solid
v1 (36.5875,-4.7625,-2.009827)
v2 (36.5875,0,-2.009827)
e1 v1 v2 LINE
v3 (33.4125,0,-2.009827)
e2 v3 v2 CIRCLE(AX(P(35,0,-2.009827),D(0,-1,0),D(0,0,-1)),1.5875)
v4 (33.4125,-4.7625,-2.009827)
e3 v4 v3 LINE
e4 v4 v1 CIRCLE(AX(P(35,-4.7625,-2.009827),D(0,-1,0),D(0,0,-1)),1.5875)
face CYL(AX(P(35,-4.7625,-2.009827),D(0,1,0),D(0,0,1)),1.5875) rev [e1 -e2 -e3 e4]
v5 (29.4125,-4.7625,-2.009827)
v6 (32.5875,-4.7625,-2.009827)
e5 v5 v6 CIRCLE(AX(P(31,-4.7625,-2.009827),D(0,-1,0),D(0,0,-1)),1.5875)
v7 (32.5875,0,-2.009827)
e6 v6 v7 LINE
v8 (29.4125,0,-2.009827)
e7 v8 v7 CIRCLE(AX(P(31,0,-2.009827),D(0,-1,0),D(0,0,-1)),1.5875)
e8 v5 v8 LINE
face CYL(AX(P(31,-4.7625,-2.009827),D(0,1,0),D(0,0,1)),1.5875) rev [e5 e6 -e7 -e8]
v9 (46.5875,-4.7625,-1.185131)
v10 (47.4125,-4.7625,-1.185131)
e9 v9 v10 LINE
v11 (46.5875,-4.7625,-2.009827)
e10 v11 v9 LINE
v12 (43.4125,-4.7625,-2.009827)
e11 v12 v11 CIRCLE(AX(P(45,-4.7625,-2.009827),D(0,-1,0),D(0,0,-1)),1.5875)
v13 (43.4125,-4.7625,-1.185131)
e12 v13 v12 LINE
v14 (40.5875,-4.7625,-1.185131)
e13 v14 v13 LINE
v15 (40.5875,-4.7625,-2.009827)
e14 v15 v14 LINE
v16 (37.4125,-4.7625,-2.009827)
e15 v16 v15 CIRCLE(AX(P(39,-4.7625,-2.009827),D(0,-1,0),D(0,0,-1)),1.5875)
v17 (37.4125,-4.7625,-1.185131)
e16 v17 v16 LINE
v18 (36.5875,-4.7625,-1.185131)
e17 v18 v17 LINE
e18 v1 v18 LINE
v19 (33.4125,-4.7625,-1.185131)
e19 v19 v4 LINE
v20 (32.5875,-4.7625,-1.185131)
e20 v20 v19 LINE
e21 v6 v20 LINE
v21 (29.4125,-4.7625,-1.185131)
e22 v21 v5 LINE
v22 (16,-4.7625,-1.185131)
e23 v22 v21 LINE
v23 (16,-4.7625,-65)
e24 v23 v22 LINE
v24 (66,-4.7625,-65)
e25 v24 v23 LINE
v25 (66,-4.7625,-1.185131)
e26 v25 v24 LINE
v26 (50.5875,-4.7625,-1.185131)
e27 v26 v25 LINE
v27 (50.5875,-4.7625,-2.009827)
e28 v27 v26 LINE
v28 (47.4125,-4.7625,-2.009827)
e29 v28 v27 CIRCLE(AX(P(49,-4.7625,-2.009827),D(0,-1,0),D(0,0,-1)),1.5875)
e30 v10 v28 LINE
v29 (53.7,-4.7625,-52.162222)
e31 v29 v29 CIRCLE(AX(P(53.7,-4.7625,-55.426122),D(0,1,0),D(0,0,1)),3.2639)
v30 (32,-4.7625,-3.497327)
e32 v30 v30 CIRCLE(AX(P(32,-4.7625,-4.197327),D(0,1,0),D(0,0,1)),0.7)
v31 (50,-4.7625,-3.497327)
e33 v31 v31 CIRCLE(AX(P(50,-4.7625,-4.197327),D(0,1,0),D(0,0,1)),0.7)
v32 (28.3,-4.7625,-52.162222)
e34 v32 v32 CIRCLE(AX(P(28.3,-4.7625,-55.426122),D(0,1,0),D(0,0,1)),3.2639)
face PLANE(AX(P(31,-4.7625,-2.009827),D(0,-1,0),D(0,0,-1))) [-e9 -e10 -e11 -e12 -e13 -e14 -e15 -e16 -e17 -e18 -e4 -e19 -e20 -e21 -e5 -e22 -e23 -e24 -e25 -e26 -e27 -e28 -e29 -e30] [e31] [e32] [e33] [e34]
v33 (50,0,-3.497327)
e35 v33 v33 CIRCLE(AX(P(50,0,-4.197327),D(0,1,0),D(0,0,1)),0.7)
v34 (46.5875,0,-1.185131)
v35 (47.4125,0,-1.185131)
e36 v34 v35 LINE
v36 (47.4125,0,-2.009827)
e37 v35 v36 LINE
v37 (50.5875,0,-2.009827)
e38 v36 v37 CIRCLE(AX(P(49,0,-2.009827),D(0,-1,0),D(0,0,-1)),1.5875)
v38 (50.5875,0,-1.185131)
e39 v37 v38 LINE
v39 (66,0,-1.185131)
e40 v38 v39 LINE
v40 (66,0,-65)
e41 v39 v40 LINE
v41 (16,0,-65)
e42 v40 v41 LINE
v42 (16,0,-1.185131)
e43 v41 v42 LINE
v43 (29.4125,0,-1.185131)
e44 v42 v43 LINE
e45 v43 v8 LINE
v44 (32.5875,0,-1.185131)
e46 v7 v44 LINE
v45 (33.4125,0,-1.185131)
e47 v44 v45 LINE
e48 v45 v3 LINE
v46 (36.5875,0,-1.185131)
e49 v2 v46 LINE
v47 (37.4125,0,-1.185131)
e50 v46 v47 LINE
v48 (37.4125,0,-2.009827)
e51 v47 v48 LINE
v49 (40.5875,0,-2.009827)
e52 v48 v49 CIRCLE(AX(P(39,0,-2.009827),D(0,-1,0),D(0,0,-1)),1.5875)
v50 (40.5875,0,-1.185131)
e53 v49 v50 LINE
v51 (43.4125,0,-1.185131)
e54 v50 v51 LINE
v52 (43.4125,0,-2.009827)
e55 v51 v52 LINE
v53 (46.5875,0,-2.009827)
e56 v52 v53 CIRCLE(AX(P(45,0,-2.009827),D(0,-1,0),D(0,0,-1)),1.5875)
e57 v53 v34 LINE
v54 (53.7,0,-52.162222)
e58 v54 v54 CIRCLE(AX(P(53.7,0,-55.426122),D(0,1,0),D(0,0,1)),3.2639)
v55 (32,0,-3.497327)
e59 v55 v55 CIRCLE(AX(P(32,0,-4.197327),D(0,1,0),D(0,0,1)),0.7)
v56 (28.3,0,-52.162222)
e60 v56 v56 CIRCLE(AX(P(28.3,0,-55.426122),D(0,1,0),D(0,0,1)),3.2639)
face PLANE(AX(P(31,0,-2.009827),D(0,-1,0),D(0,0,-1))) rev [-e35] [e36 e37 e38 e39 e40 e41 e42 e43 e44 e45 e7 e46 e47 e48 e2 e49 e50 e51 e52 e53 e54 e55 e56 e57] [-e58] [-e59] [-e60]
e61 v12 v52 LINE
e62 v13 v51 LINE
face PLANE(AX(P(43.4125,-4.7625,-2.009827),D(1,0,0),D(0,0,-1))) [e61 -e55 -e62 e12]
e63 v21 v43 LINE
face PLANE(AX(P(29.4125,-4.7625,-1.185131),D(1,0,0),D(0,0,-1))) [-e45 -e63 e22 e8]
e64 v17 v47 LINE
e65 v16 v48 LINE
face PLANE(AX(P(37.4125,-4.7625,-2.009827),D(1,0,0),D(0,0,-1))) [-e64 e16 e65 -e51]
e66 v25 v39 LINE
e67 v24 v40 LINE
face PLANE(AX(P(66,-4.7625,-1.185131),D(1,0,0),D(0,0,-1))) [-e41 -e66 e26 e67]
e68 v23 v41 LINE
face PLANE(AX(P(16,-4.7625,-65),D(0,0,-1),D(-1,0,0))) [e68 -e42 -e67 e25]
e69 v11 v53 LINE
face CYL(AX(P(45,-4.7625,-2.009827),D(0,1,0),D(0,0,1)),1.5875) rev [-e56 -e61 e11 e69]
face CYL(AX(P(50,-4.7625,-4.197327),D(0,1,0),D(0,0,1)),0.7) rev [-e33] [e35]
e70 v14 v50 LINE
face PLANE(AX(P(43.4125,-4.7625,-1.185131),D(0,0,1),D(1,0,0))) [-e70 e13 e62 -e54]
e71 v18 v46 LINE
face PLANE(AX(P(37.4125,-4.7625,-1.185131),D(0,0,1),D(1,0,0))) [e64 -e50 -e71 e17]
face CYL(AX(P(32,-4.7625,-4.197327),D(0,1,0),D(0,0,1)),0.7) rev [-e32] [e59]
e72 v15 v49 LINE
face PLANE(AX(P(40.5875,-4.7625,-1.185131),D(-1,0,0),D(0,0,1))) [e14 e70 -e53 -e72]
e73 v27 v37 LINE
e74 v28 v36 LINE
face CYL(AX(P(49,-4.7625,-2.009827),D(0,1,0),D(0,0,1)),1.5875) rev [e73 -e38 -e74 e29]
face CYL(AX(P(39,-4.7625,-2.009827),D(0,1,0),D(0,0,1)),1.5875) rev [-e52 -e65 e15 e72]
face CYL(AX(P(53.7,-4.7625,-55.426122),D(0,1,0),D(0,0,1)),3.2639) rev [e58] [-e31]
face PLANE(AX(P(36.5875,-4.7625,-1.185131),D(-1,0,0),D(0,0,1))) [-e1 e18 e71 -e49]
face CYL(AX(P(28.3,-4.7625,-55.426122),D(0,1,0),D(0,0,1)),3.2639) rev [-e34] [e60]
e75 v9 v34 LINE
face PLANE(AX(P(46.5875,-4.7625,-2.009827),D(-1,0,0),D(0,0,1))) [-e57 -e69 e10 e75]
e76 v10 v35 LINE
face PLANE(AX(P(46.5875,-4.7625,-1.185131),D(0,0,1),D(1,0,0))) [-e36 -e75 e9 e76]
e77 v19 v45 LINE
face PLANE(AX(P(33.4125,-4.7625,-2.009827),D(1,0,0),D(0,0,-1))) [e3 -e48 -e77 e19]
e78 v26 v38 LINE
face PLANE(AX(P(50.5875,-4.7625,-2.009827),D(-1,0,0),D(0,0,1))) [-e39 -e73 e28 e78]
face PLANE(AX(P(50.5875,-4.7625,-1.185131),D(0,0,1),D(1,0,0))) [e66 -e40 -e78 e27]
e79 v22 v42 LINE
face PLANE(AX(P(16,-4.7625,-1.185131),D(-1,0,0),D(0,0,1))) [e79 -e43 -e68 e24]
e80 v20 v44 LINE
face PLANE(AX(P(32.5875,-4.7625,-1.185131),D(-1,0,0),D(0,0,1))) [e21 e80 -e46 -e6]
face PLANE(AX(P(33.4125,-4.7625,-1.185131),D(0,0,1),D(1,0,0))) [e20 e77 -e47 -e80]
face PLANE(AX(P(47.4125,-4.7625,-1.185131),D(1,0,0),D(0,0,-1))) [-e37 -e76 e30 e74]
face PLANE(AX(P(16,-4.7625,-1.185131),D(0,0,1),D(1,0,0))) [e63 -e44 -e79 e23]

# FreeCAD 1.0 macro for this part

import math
import FreeCAD as App
import Part
import Sketcher
from FreeCAD import Vector
Q = App.Units.Quantity

doc = App.newDocument("Part")
params = doc.addObject("Spreadsheet::Sheet", "Params")
for row, (alias, value) in enumerate([
    ("sketch1_diameter", "0.257 in"),
    ("sketch1_radius", "0.0625 in"),
    ("pad1_length", "0.1875 in"),
], start=1):
    params.set(f"A{row}", alias)
    params.set(f"B{row}", "=" + value)
    params.setAlias(f"B{row}", alias)

body = doc.addObject("PartDesign::Body", "Body")

# Sketch on XZ plane
sketch1 = body.newObject("Sketcher::SketchObject", "Sketch")
sketch1.AttachmentSupport = (doc.getObject("XZ_Plane"), [""])
sketch1.MapMode = "FlatFace"
sketch1.addGeometry([
    Part.LineSegment(Vector(16, -65, 0), Vector(16, -1.2, 0)),  # 0
    Part.LineSegment(Vector(16, -1.2, 0), Vector(29.4, -1.2, 0)),  # 1
    Part.LineSegment(Vector(29.4, -1.2, 0), Vector(29.4, -2, 0)),  # 2
    Part.ArcOfCircle(Part.Circle(Vector(31, -2, 0), Vector(0, 0, 1), 1.6), math.radians(180), math.radians(360)),  # 3
    Part.LineSegment(Vector(32.6, -2, 0), Vector(32.6, -1.2, 0)),  # 4
    Part.LineSegment(Vector(32.6, -1.2, 0), Vector(33.4, -1.2, 0)),  # 5
    Part.LineSegment(Vector(33.4, -1.2, 0), Vector(33.4, -2, 0)),  # 6
    Part.ArcOfCircle(Part.Circle(Vector(35, -2, 0), Vector(0, 0, 1), 1.6), math.radians(180), math.radians(360)),  # 7
    Part.LineSegment(Vector(36.6, -2, 0), Vector(36.6, -1.2, 0)),  # 8
    Part.LineSegment(Vector(36.6, -1.2, 0), Vector(37.4, -1.2, 0)),  # 9
    Part.LineSegment(Vector(37.4, -1.2, 0), Vector(37.4, -2, 0)),  # 10
    Part.ArcOfCircle(Part.Circle(Vector(39, -2, 0), Vector(0, 0, 1), 1.6), math.radians(180), math.radians(360)),  # 11
    Part.LineSegment(Vector(40.6, -2, 0), Vector(40.6, -1.2, 0)),  # 12
    Part.LineSegment(Vector(40.6, -1.2, 0), Vector(43.4, -1.2, 0)),  # 13
    Part.LineSegment(Vector(43.4, -1.2, 0), Vector(43.4, -2, 0)),  # 14
    Part.ArcOfCircle(Part.Circle(Vector(45, -2, 0), Vector(0, 0, 1), 1.6), math.radians(180), math.radians(360)),  # 15
    Part.LineSegment(Vector(46.6, -2, 0), Vector(46.6, -1.2, 0)),  # 16
    Part.LineSegment(Vector(46.6, -1.2, 0), Vector(47.4, -1.2, 0)),  # 17
    Part.LineSegment(Vector(47.4, -1.2, 0), Vector(47.4, -2, 0)),  # 18
    Part.ArcOfCircle(Part.Circle(Vector(49, -2, 0), Vector(0, 0, 1), 1.6), math.radians(180), math.radians(360)),  # 19
    Part.LineSegment(Vector(50.6, -2, 0), Vector(50.6, -1.2, 0)),  # 20
    Part.LineSegment(Vector(50.6, -1.2, 0), Vector(66, -1.2, 0)),  # 21
    Part.LineSegment(Vector(66, -1.2, 0), Vector(66, -65, 0)),  # 22
    Part.LineSegment(Vector(66, -65, 0), Vector(16, -65, 0)),  # 23
    Part.Circle(Vector(50, -4.2, 0), Vector(0, 0, 1), 0.7),  # 24
    Part.Circle(Vector(32, -4.2, 0), Vector(0, 0, 1), 0.7),  # 25
    Part.Circle(Vector(53.7, -55.4, 0), Vector(0, 0, 1), 3.3),  # 26
    Part.Circle(Vector(28.3, -55.4, 0), Vector(0, 0, 1), 3.3),  # 27
], False)
sketch1.addConstraint([
    Sketcher.Constraint("Coincident", 0, 2, 1, 1),
    Sketcher.Constraint("Coincident", 1, 2, 2, 1),
    Sketcher.Constraint("Tangent", 2, 2, 3, 1),
    Sketcher.Constraint("Tangent", 3, 2, 4, 1),
    Sketcher.Constraint("Coincident", 4, 2, 5, 1),
    Sketcher.Constraint("Coincident", 5, 2, 6, 1),
    Sketcher.Constraint("Tangent", 6, 2, 7, 1),
    Sketcher.Constraint("Tangent", 7, 2, 8, 1),
    Sketcher.Constraint("Coincident", 8, 2, 9, 1),
    Sketcher.Constraint("Coincident", 9, 2, 10, 1),
    Sketcher.Constraint("Tangent", 10, 2, 11, 1),
    Sketcher.Constraint("Tangent", 11, 2, 12, 1),
    Sketcher.Constraint("Coincident", 12, 2, 13, 1),
    Sketcher.Constraint("Coincident", 13, 2, 14, 1),
    Sketcher.Constraint("Tangent", 14, 2, 15, 1),
    Sketcher.Constraint("Tangent", 15, 2, 16, 1),
    Sketcher.Constraint("Coincident", 16, 2, 17, 1),
    Sketcher.Constraint("Coincident", 17, 2, 18, 1),
    Sketcher.Constraint("Tangent", 18, 2, 19, 1),
    Sketcher.Constraint("Tangent", 19, 2, 20, 1),
    Sketcher.Constraint("Coincident", 20, 2, 21, 1),
    Sketcher.Constraint("Coincident", 21, 2, 22, 1),
    Sketcher.Constraint("Coincident", 22, 2, 23, 1),
    Sketcher.Constraint("Coincident", 23, 2, 0, 1),
    Sketcher.Constraint("Vertical", 0),
    Sketcher.Constraint("Horizontal", 1),
    Sketcher.Constraint("Vertical", 2),
    Sketcher.Constraint("Vertical", 4),
    Sketcher.Constraint("Horizontal", 5),
    Sketcher.Constraint("Vertical", 6),
    Sketcher.Constraint("Vertical", 8),
    Sketcher.Constraint("Horizontal", 9),
    Sketcher.Constraint("Vertical", 10),
    Sketcher.Constraint("Vertical", 12),
    Sketcher.Constraint("Horizontal", 13),
    Sketcher.Constraint("Vertical", 14),
    Sketcher.Constraint("Vertical", 16),
    Sketcher.Constraint("Horizontal", 17),
    Sketcher.Constraint("Vertical", 18),
    Sketcher.Constraint("Vertical", 20),
    Sketcher.Constraint("Horizontal", 21),
    Sketcher.Constraint("Vertical", 22),
    Sketcher.Constraint("Horizontal", 23),
    Sketcher.Constraint("Equal", 3, 7),
    Sketcher.Constraint("Equal", 7, 11),
    Sketcher.Constraint("Equal", 11, 15),
    Sketcher.Constraint("Equal", 15, 19),
    Sketcher.Constraint("Equal", 24, 25),
    Sketcher.Constraint("Equal", 26, 27),
    Sketcher.Constraint("Horizontal", 3, 3, 7, 3),
    Sketcher.Constraint("Horizontal", 7, 3, 11, 3),
    Sketcher.Constraint("Horizontal", 11, 3, 15, 3),
    Sketcher.Constraint("Horizontal", 15, 3, 19, 3),
    Sketcher.Constraint("Horizontal", 24, 3, 25, 3),
    Sketcher.Constraint("Horizontal", 26, 3, 27, 3),
    Sketcher.Constraint("Horizontal", 1, 2, 4, 2),
    Sketcher.Constraint("Horizontal", 5, 2, 8, 2),
    Sketcher.Constraint("Horizontal", 9, 2, 12, 2),
    Sketcher.Constraint("Horizontal", 13, 2, 16, 2),
    Sketcher.Constraint("Horizontal", 17, 2, 20, 2),
    Sketcher.Constraint("Equal", 5, 9),
    Sketcher.Constraint("Equal", 9, 17),
    Sketcher.Constraint("Diameter", 26, Q("0.257 in")),
    Sketcher.Constraint("Radius", 3, Q("0.0625 in")),
    Sketcher.Constraint("DistanceX", 27, 3, 26, 3, Q("1 in")),
    Sketcher.Constraint("Diameter", 24, 1.4),
    Sketcher.Constraint("DistanceX", 1, 1, 1, 2, 13.4125),
    Sketcher.Constraint("DistanceX", 5, 1, 5, 2, 0.825),
    Sketcher.Constraint("DistanceX", 13, 1, 13, 2, 2.825),
    Sketcher.Constraint("DistanceX", 21, 1, 21, 2, 15.4125),
    Sketcher.Constraint("DistanceY", 0, 1, 0, 2, 63.814869),
    Sketcher.Constraint("DistanceX", -1, 1, 3, 3, 31.0),
    Sketcher.Constraint("DistanceX", -1, 1, 24, 3, 50.0),
    Sketcher.Constraint("DistanceX", -1, 1, 25, 3, 32.0),
    Sketcher.Constraint("DistanceX", -1, 1, 26, 3, 53.7),
    Sketcher.Constraint("DistanceY", 22, 2, -1, 1, 65.0),
    Sketcher.Constraint("DistanceY", 24, 3, 19, 3, 2.1875),
    Sketcher.Constraint("DistanceY", 2, 2, 2, 1, 0.824696),
    Sketcher.Constraint("DistanceY", 26, 3, -1, 1, 55.426122),
])
sketch1.setExpression("Constraints[62]", "Params.sketch1_diameter")
sketch1.setExpression("Constraints[63]", "Params.sketch1_radius")
pad1 = body.newObject("PartDesign::Pad", "Pad")
pad1.Profile = sketch1
pad1.setExpression("Length", "Params.pad1_length")

doc.recompute()
